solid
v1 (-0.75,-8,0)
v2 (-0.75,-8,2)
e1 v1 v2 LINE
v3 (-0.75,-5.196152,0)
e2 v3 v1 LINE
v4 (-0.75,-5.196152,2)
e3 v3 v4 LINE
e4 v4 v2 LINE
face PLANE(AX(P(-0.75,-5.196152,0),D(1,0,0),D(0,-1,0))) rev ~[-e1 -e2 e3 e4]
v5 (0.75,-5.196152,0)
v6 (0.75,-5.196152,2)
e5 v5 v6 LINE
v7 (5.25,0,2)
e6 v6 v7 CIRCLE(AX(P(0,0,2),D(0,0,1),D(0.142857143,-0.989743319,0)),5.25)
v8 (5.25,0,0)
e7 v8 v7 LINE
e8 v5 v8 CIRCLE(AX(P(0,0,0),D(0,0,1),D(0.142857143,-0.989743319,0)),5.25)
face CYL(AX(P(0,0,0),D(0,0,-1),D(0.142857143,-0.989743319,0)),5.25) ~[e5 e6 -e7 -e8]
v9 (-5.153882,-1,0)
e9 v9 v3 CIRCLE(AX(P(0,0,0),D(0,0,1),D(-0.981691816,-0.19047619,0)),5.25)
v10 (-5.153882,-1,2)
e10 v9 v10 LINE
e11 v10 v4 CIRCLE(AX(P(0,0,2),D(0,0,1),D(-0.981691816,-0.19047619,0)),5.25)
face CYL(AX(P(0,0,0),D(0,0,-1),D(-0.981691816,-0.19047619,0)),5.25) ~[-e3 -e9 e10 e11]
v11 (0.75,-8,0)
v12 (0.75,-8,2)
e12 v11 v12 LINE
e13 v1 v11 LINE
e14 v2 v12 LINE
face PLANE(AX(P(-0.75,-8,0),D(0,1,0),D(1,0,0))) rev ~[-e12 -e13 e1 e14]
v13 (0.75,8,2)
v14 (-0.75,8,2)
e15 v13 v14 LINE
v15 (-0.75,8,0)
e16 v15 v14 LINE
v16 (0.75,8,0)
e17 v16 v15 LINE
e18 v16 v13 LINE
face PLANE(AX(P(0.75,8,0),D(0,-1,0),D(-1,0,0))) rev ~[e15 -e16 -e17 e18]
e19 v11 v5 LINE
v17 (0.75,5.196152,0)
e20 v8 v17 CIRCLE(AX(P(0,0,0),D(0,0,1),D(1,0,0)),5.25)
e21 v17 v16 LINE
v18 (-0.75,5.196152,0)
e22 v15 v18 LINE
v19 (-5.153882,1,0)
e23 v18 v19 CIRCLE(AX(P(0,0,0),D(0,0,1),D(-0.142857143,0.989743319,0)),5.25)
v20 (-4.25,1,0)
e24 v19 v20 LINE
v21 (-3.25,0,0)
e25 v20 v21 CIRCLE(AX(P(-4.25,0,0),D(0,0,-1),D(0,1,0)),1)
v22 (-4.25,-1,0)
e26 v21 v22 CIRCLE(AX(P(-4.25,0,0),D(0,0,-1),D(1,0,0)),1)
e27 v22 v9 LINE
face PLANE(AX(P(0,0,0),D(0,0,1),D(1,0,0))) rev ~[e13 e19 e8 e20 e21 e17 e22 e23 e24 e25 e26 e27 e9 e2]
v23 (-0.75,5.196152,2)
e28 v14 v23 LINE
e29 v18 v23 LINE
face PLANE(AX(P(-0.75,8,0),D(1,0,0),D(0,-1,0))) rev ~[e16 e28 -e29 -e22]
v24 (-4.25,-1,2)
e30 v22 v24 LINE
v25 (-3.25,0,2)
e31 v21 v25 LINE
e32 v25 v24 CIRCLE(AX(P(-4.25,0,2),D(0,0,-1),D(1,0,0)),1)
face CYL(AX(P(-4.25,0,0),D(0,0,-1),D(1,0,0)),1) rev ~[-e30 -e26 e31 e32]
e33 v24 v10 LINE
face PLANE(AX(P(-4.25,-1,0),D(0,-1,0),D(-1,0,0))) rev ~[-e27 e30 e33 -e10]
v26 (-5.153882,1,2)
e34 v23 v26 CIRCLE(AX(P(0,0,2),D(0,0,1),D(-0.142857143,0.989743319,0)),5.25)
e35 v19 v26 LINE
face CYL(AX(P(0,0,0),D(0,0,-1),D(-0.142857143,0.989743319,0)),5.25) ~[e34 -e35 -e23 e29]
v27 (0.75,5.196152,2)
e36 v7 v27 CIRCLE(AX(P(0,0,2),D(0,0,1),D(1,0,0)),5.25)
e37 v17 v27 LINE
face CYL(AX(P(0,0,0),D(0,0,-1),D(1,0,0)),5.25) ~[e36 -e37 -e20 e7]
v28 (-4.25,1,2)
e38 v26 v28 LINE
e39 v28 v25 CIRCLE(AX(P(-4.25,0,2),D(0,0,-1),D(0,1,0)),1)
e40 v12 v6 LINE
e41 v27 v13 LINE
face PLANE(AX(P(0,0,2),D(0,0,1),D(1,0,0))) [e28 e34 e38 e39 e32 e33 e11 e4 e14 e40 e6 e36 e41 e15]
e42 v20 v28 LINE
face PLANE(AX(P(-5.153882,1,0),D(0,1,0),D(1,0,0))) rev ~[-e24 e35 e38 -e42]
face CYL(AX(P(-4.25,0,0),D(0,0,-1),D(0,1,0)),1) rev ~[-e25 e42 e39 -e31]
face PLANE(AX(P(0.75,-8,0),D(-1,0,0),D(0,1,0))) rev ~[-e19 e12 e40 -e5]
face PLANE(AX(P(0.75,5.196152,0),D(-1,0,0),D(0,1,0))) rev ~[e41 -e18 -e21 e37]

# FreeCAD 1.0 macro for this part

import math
import FreeCAD as App
import Part
import Sketcher

V = App.Vector

doc = App.newDocument("Part")
body = doc.addObject("PartDesign::Body", "Body")

sketch1 = doc.addObject("Sketcher::SketchObject", "Sketch")
body.addObject(sketch1)
sketch1.AttachmentSupport = (doc.XY_Plane, [""])
sketch1.MapMode = "FlatFace"
sketch1.addGeometry(Part.ArcOfCircle(Part.Circle(V(0, 0, 0), V(0, 0, 1), 5.25), math.radians(-81.786789), math.radians(0)), False)
sketch1.addGeometry(Part.ArcOfCircle(Part.Circle(V(0, 0, 0), V(0, 0, 1), 5.25), math.radians(0), math.radians(81.786789)), False)
sketch1.addGeometry(Part.LineSegment(V(0.75, 5.196152, 0), V(0.75, 8, 0)), False)
sketch1.addGeometry(Part.LineSegment(V(0.75, 8, 0), V(-0.75, 8, 0)), False)
sketch1.addGeometry(Part.LineSegment(V(-0.75, 8, 0), V(-0.75, 5.196152, 0)), False)
sketch1.addGeometry(Part.ArcOfCircle(Part.Circle(V(0, 0, 0), V(0, 0, 1), 5.25), math.radians(98.213211), math.radians(169.019425)), False)
sketch1.addGeometry(Part.LineSegment(V(-5.153882, 1, 0), V(-4.25, 1, 0)), False)
sketch1.addGeometry(Part.ArcOfCircle(Part.Circle(V(-4.25, 0, 0), V(0, 0, 1), 1), math.radians(0), math.radians(90)), False)
sketch1.addGeometry(Part.ArcOfCircle(Part.Circle(V(-4.25, 0, 0), V(0, 0, 1), 1), math.radians(-90), math.radians(0)), False)
sketch1.addGeometry(Part.LineSegment(V(-4.25, -1, 0), V(-5.153882, -1, 0)), False)
sketch1.addGeometry(Part.ArcOfCircle(Part.Circle(V(0, 0, 0), V(0, 0, 1), 5.25), math.radians(-169.019425), math.radians(-98.213211)), False)
sketch1.addGeometry(Part.LineSegment(V(-0.75, -5.196152, 0), V(-0.75, -8, 0)), False)
sketch1.addGeometry(Part.LineSegment(V(-0.75, -8, 0), V(0.75, -8, 0)), False)
sketch1.addGeometry(Part.LineSegment(V(0.75, -8, 0), V(0.75, -5.196152, 0)), False)
sketch1.addConstraint(Sketcher.Constraint("Tangent", 0, 2, 1, 1))
sketch1.addConstraint(Sketcher.Constraint("Coincident", 1, 2, 2, 1))
sketch1.addConstraint(Sketcher.Constraint("Coincident", 2, 2, 3, 1))
sketch1.addConstraint(Sketcher.Constraint("Coincident", 3, 2, 4, 1))
sketch1.addConstraint(Sketcher.Constraint("Coincident", 4, 2, 5, 1))
sketch1.addConstraint(Sketcher.Constraint("Coincident", 5, 2, 6, 1))
sketch1.addConstraint(Sketcher.Constraint("Tangent", 6, 2, 7, 2))
sketch1.addConstraint(Sketcher.Constraint("Tangent", 7, 1, 8, 2))
sketch1.addConstraint(Sketcher.Constraint("Tangent", 8, 1, 9, 1))
sketch1.addConstraint(Sketcher.Constraint("Coincident", 9, 2, 10, 1))
sketch1.addConstraint(Sketcher.Constraint("Coincident", 10, 2, 11, 1))
sketch1.addConstraint(Sketcher.Constraint("Coincident", 11, 2, 12, 1))
sketch1.addConstraint(Sketcher.Constraint("Coincident", 12, 2, 13, 1))
sketch1.addConstraint(Sketcher.Constraint("Coincident", 13, 2, 0, 1))
sketch1.addConstraint(Sketcher.Constraint("Vertical", 2))
sketch1.addConstraint(Sketcher.Constraint("Horizontal", 3))
sketch1.addConstraint(Sketcher.Constraint("Vertical", 4))
sketch1.addConstraint(Sketcher.Constraint("Horizontal", 6))
sketch1.addConstraint(Sketcher.Constraint("Horizontal", 9))
sketch1.addConstraint(Sketcher.Constraint("Vertical", 11))
sketch1.addConstraint(Sketcher.Constraint("Horizontal", 12))
sketch1.addConstraint(Sketcher.Constraint("Vertical", 13))
sketch1.addConstraint(Sketcher.Constraint("Coincident", 0, 3, -1, 1))
sketch1.addConstraint(Sketcher.Constraint("Coincident", 5, 3, -1, 1))
sketch1.addConstraint(Sketcher.Constraint("Coincident", 10, 3, -1, 1))
sketch1.addConstraint(Sketcher.Constraint("Equal", 0, 1))
sketch1.addConstraint(Sketcher.Constraint("Equal", 1, 5))
sketch1.addConstraint(Sketcher.Constraint("Equal", 7, 8))
sketch1.addConstraint(Sketcher.Constraint("Equal", 5, 10))
sketch1.addConstraint(Sketcher.Constraint("Symmetric", 2, 2, 11, 2, -1, 1))
sketch1.addConstraint(Sketcher.Constraint("PointOnObject", 7, 3, -1))
sketch1.addConstraint(Sketcher.Constraint("PointOnObject", 0, 2, -1))
sketch1.addConstraint(Sketcher.Constraint("PointOnObject", 7, 1, -1))
sketch1.addConstraint(Sketcher.Constraint("Horizontal", 1, 2, 4, 2))
sketch1.addConstraint(Sketcher.Constraint("Horizontal", 10, 2, 13, 2))
sketch1.addConstraint(Sketcher.Constraint("Radius", 7, 1.0))
sketch1.addConstraint(Sketcher.Constraint("Radius", 0, 5.25))
sketch1.addConstraint(Sketcher.Constraint("DistanceX", 3, 2, 3, 1, 1.5))
sketch1.addConstraint(Sketcher.Constraint("DistanceY", -1, 1, 2, 2, 8.0))
sketch1.addConstraint(Sketcher.Constraint("DistanceX", 7, 3, 0, 2, 9.5))
pad1 = doc.addObject("PartDesign::Pad", "Pad")
body.addObject(pad1)
pad1.Profile = sketch1
pad1.Length = 2

doc.recompute()
